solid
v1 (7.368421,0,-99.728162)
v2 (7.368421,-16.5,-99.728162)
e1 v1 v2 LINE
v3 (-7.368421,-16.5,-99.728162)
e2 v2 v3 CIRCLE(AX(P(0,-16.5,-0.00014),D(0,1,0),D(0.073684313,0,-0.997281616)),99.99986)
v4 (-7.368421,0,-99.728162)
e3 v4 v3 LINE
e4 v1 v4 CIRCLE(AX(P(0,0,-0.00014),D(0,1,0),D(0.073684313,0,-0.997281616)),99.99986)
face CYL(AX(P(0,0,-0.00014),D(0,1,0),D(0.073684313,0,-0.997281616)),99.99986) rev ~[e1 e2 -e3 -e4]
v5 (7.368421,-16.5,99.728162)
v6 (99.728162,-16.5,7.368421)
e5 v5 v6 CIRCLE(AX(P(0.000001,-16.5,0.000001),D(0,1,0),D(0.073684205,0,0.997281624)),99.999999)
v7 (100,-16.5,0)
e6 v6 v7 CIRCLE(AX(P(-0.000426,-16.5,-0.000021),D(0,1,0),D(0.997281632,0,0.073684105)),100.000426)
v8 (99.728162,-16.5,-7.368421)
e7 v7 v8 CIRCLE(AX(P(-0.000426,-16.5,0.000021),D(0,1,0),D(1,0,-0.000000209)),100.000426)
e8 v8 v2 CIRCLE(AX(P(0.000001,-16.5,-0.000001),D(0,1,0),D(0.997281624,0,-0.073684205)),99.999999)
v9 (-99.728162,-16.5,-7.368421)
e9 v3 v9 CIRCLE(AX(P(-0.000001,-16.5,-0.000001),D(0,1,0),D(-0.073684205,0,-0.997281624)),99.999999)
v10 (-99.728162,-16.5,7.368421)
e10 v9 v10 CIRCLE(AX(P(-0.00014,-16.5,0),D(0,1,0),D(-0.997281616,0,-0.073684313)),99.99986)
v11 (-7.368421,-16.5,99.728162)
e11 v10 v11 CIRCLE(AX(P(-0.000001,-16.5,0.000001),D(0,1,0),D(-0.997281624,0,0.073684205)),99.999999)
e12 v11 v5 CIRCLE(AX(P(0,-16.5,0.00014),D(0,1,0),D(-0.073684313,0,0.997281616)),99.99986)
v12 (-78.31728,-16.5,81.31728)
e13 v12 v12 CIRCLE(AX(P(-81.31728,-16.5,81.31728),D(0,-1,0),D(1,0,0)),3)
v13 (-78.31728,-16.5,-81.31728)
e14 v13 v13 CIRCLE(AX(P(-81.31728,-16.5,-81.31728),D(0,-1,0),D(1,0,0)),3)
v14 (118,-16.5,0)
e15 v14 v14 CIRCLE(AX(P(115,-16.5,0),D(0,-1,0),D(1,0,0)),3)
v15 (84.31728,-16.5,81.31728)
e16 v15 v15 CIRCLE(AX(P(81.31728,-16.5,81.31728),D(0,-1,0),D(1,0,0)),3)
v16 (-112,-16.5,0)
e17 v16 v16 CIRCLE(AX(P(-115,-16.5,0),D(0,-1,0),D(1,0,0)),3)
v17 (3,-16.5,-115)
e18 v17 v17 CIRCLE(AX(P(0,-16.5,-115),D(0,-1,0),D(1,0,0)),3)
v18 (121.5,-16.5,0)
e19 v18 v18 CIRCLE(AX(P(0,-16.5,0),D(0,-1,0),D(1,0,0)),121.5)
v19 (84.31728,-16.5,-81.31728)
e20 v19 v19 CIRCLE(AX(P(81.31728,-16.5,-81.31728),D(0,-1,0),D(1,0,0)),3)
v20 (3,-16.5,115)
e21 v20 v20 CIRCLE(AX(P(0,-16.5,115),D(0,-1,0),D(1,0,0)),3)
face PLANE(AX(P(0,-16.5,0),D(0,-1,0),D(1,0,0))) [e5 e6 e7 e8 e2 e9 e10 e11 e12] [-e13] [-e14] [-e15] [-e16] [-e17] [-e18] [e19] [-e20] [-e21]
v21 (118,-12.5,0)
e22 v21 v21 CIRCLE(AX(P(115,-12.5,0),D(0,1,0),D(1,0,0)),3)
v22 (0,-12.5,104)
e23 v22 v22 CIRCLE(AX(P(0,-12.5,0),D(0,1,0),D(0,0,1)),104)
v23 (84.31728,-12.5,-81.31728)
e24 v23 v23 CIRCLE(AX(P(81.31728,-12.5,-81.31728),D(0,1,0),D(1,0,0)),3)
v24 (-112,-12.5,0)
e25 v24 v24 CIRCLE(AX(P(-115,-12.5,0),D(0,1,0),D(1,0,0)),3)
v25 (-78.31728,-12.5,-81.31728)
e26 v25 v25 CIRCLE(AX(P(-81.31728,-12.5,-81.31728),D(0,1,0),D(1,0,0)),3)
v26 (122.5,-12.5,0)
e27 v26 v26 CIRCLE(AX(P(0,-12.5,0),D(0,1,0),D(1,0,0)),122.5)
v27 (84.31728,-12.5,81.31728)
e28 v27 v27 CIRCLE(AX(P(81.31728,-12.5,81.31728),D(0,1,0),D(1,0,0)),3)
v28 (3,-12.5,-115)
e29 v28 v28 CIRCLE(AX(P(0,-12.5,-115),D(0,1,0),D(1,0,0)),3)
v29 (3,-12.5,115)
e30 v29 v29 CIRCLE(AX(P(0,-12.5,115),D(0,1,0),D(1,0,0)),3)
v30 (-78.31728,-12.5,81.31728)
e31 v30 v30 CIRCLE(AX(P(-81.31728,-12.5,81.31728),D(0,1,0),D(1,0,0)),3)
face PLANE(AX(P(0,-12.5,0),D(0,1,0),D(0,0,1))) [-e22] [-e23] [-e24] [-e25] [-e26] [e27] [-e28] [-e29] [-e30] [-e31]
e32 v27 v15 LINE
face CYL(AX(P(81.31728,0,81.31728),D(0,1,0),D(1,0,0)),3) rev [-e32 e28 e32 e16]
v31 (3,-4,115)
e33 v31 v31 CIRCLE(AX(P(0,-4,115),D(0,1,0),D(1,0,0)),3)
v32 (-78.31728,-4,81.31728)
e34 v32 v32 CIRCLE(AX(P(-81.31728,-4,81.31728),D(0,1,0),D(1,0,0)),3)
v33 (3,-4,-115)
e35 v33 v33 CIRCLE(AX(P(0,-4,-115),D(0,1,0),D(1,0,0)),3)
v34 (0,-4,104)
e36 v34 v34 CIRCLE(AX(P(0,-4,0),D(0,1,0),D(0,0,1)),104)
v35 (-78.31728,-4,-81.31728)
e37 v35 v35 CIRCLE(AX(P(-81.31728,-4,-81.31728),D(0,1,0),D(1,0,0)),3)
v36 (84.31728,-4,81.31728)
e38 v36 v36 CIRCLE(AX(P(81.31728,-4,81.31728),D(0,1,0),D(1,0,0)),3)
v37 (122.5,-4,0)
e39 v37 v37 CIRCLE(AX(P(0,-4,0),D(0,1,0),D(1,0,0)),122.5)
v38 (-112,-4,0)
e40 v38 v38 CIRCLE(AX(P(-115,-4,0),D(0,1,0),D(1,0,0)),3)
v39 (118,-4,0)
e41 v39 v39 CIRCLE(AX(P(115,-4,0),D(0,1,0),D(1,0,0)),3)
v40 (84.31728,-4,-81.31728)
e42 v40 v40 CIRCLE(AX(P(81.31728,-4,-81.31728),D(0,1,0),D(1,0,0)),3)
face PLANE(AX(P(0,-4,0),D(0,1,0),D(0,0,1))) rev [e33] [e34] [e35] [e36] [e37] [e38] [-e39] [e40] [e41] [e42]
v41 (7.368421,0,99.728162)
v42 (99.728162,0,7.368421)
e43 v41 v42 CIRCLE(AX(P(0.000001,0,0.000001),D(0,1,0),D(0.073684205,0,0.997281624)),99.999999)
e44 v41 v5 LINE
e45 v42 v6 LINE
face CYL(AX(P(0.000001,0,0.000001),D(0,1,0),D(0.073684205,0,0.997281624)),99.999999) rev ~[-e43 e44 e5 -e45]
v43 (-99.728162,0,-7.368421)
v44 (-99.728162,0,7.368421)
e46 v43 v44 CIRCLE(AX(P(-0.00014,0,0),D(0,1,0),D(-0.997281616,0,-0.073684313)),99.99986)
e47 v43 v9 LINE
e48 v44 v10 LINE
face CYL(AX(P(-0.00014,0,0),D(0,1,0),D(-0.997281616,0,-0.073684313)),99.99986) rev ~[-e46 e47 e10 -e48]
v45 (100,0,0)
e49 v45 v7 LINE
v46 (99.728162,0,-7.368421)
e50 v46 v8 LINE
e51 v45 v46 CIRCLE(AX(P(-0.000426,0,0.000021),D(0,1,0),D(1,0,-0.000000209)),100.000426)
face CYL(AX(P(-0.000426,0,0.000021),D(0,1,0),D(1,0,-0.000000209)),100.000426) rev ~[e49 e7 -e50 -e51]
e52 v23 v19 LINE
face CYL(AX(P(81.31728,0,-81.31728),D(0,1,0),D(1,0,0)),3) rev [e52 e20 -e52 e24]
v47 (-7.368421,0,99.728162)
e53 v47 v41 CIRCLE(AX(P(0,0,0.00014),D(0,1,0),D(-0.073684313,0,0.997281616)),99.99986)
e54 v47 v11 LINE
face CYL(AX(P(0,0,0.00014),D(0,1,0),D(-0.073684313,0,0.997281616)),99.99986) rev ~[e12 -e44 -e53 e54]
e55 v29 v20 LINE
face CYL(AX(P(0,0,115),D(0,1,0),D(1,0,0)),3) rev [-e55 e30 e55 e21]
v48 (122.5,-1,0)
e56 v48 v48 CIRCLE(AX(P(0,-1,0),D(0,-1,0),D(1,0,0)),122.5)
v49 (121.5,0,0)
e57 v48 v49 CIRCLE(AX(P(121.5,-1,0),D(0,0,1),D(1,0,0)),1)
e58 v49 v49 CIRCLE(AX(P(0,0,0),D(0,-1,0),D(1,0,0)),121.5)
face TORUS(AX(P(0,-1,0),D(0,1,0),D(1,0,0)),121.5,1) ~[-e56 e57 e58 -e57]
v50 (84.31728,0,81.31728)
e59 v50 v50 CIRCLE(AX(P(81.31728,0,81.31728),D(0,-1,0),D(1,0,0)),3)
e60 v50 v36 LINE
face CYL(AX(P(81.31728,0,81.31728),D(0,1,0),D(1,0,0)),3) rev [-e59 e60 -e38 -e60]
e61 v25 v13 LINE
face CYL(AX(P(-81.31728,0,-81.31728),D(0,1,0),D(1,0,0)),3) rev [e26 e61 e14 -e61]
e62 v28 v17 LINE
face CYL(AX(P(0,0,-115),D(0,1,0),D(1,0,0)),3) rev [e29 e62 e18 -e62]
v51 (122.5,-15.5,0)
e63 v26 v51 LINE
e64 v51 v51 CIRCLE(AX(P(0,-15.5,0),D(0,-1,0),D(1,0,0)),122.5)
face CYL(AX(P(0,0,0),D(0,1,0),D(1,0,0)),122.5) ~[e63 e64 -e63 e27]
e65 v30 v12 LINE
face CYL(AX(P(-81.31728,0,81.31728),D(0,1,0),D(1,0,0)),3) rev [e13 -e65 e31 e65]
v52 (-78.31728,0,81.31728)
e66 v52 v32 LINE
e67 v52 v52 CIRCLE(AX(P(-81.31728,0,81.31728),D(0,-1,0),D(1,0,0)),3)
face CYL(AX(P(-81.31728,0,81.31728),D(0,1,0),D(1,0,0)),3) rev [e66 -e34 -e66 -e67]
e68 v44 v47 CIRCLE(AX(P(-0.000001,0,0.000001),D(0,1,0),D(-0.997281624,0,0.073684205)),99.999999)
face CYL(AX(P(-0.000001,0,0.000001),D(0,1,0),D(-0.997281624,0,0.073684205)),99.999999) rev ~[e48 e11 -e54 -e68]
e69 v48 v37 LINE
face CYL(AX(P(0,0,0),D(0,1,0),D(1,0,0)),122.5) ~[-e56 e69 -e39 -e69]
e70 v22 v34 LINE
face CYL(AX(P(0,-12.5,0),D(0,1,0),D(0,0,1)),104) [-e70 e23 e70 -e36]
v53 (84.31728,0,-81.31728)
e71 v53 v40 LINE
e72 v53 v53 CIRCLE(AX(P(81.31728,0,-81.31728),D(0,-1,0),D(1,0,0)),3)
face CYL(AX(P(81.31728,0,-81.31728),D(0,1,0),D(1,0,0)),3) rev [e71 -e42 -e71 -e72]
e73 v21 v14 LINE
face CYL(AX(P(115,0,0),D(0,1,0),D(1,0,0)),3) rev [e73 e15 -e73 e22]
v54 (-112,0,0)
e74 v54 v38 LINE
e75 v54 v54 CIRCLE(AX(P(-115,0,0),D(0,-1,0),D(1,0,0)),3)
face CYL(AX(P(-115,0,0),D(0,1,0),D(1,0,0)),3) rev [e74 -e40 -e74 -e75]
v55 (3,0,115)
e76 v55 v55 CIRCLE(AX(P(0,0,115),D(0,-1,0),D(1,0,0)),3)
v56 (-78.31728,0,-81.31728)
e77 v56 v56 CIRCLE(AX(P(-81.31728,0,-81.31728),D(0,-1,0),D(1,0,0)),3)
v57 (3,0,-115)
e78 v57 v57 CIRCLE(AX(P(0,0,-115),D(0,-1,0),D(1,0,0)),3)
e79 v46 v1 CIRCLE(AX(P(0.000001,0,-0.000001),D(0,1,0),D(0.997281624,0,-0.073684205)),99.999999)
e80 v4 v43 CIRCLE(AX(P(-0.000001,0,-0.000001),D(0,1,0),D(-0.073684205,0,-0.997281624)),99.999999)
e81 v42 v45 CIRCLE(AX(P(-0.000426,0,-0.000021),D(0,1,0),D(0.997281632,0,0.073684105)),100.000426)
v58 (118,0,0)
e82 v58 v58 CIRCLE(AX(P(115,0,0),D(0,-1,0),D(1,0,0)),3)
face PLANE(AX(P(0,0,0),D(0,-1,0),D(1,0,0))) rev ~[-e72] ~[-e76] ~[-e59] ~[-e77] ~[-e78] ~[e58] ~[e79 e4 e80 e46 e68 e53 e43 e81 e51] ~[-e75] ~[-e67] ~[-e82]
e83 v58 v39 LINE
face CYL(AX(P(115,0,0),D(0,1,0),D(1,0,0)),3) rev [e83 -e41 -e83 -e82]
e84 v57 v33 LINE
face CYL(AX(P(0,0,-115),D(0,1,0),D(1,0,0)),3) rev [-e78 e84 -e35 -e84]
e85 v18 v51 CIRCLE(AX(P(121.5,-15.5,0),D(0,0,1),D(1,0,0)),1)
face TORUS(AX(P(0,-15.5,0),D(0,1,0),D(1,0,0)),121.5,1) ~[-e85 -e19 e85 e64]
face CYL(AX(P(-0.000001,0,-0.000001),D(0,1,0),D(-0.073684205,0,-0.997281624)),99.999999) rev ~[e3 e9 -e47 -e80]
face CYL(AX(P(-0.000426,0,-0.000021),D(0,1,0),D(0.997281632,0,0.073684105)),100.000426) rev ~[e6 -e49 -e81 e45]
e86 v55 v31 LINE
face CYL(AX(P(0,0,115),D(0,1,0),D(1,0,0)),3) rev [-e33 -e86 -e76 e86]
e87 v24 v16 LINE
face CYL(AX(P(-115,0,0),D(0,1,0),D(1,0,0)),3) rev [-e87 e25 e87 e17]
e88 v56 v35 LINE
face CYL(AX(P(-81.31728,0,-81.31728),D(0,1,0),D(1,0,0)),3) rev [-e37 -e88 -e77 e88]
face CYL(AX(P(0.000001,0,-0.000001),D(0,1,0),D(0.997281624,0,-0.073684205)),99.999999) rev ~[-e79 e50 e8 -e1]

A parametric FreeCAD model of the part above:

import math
import FreeCAD as App
import Part
import Sketcher

V = App.Vector
Q = App.Units.Quantity


def edges_at(feature, points):
    """Names of the edges that pass closest to the given points."""
    edges = feature.Shape.Edges
    near = lambda p: min(range(len(edges)), key=lambda i: edges[i].distToShape(Part.Vertex(*p))[0])
    return sorted({f"Edge{near(p) + 1}" for p in points})

doc = App.newDocument("Part")
params = doc.addObject("Spreadsheet::Sheet", "Params")
for row, (alias, value) in enumerate([
    ("sketch1_diameter", "245 mm"),
    ("sketch1_diameter2", "6 mm"),
    ("sketch1_diameter3", "6 mm"),
    ("sketch1_diameter4", "6 mm"),
    ("sketch1_diameter5", "6 mm"),
    ("pad1_length", "16.5 mm"),
    ("sketch2_width", "8.5 mm"),
    ("groove_angle", "360 deg"),
    ("fillet_radius", "1 mm"),
], start=1):
    params.set(f"A{row}", alias)
    params.set(f"B{row}", "=" + value)
    params.setAlias(f"B{row}", alias)

body = doc.addObject("PartDesign::Body", "Body")

# Sketch on XZ plane
sketch1 = body.newObject("Sketcher::SketchObject", "Sketch")
sketch1.AttachmentSupport = (doc.getObject("XZ_Plane"), [""])
sketch1.MapMode = "FlatFace"
sketch1.addGeometry([
    Part.Circle(V(0, 0, 0), V(0, 0, 1), 122.5),  # 0
    Part.Circle(V(-81.31728, -81.31728, 0), V(0, 0, 1), 3),  # 1
    Part.Circle(V(0, -115, 0), V(0, 0, 1), 3),  # 2
    Part.Circle(V(81.31728, -81.31728, 0), V(0, 0, 1), 3),  # 3
    Part.Circle(V(-115, 0, 0), V(0, 0, 1), 3),  # 4
    Part.Circle(V(-81.31728, 81.31728, 0), V(0, 0, 1), 3),  # 5
    Part.ArcOfCircle(Part.Circle(V(-0.00014, 0, 0), V(0, 0, 1), 99.99986), math.radians(175.77437), math.radians(184.22563)),  # 6
    Part.ArcOfCircle(Part.Circle(V(-0.000001, 0.000001, 0), V(0, 0, 1), 99.999999), math.radians(94.225624), math.radians(175.774376)),  # 7
    Part.ArcOfCircle(Part.Circle(V(0, 0.00014, 0), V(0, 0, 1), 99.99986), math.radians(85.77437), math.radians(94.22563)),  # 8
    Part.ArcOfCircle(Part.Circle(V(0.000001, 0.000001, 0), V(0, 0, 1), 99.999999), math.radians(4.225624), math.radians(85.774376)),  # 9
    Part.ArcOfCircle(Part.Circle(V(-0.000426, -0.000021, 0), V(0, 0, 1), 100.000426), math.radians(0.000012), math.radians(4.225618)),  # 10
    Part.ArcOfCircle(Part.Circle(V(-0.000426, 0.000021, 0), V(0, 0, 1), 100.000426), math.radians(-4.225618), math.radians(-0.000012)),  # 11
    Part.ArcOfCircle(Part.Circle(V(0.000001, -0.000001, 0), V(0, 0, 1), 99.999999), math.radians(-85.774376), math.radians(-4.225624)),  # 12
    Part.ArcOfCircle(Part.Circle(V(0, -0.00014, 0), V(0, 0, 1), 99.99986), math.radians(-94.22563), math.radians(-85.77437)),  # 13
    Part.ArcOfCircle(Part.Circle(V(-0.000001, -0.000001, 0), V(0, 0, 1), 99.999999), math.radians(-175.774376), math.radians(-94.225624)),  # 14
    Part.Circle(V(115, 0, 0), V(0, 0, 1), 3),  # 15
    Part.Circle(V(0, 115, 0), V(0, 0, 1), 3),  # 16
    Part.Circle(V(81.31728, 81.31728, 0), V(0, 0, 1), 3),  # 17
], False)
sketch1.addConstraint([
    Sketcher.Constraint("Coincident", 6, 1, 7, 2),
    Sketcher.Constraint("Coincident", 7, 1, 8, 2),
    Sketcher.Constraint("Coincident", 8, 1, 9, 2),
    Sketcher.Constraint("Coincident", 9, 1, 10, 2),
    Sketcher.Constraint("Coincident", 10, 1, 11, 2),
    Sketcher.Constraint("Coincident", 11, 1, 12, 2),
    Sketcher.Constraint("Coincident", 12, 1, 13, 2),
    Sketcher.Constraint("Coincident", 13, 1, 14, 2),
    Sketcher.Constraint("Coincident", 14, 1, 6, 2),
    Sketcher.Constraint("Coincident", 0, 3, -1, 1),
    Sketcher.Constraint("Coincident", 7, 3, -1, 1),
    Sketcher.Constraint("Coincident", 9, 3, -1, 1),
    Sketcher.Constraint("Coincident", 12, 3, -1, 1),
    Sketcher.Constraint("Coincident", 14, 3, -1, 1),
    Sketcher.Constraint("PointOnObject", 2, 3, -2),
    Sketcher.Constraint("PointOnObject", 4, 3, -1),
    Sketcher.Constraint("PointOnObject", 6, 3, -1),
    Sketcher.Constraint("PointOnObject", 8, 3, -2),
    Sketcher.Constraint("PointOnObject", 13, 3, -2),
    Sketcher.Constraint("PointOnObject", 15, 3, -1),
    Sketcher.Constraint("PointOnObject", 16, 3, -2),
    Sketcher.Constraint("PointOnObject", 10, 1, -1),
    Sketcher.Constraint("Diameter", 0, Q("245 mm")),
    Sketcher.Constraint("Diameter", 1, Q("6 mm")),
    Sketcher.Constraint("Diameter", 2, Q("6 mm")),
    Sketcher.Constraint("Diameter", 3, Q("6 mm")),
    Sketcher.Constraint("Diameter", 4, Q("6 mm")),
    Sketcher.Constraint("Diameter", 5, Q("6 mm")),
    Sketcher.Constraint("Diameter", 15, Q("6 mm")),
    Sketcher.Constraint("Diameter", 16, Q("6 mm")),
    Sketcher.Constraint("Diameter", 17, Q("6 mm")),
    Sketcher.Constraint("Radius", 7, Q("99.999999 mm")),
    Sketcher.Constraint("DistanceY", 2, 3, -1, 1, Q("115 mm")),
    Sketcher.Constraint("DistanceX", 4, 3, -1, 1, Q("115 mm")),
    Sketcher.Constraint("DistanceX", -1, 1, 15, 3, Q("115 mm")),
    Sketcher.Constraint("DistanceY", -1, 1, 16, 3, Q("115 mm")),
    Sketcher.Constraint("DistanceX", -1, 1, 10, 1, Q("100 mm")),
    Sketcher.Constraint("Radius", 6, Q("99.99986 mm")),
    Sketcher.Constraint("Radius", 8, Q("99.99986 mm")),
    Sketcher.Constraint("Radius", 13, Q("99.99986 mm")),
    Sketcher.Constraint("Radius", 10, Q("100.000426 mm")),
    Sketcher.Constraint("Radius", 11, Q("100.000426 mm")),
    Sketcher.Constraint("DistanceY", 1, 3, 6, 1, Q("88.685701 mm")),
    Sketcher.Constraint("DistanceY", 11, 3, 6, 1, Q("7.3684 mm")),
    Sketcher.Constraint("DistanceX", 7, 1, 17, 3, Q("88.685701 mm")),
    Sketcher.Constraint("DistanceX", 5, 3, 8, 1, Q("88.685701 mm")),
    Sketcher.Constraint("DistanceY", 3, 3, 9, 1, Q("88.685701 mm")),
    Sketcher.Constraint("DistanceY", 11, 1, 17, 3, Q("88.685701 mm")),
    Sketcher.Constraint("DistanceX", 1, 3, 12, 1, Q("88.685701 mm")),
    Sketcher.Constraint("DistanceX", 13, 1, 3, 3, Q("88.685701 mm")),
    Sketcher.Constraint("DistanceY", 14, 1, 5, 3, Q("88.685701 mm")),
    Sketcher.Constraint("DistanceY", 14, 1, 10, 3, Q("7.3684 mm")),
    Sketcher.Constraint("DistanceX", 1, 3, -1, 1, Q("81.31728 mm")),
    Sketcher.Constraint("DistanceX", -1, 1, 3, 3, Q("81.31728 mm")),
    Sketcher.Constraint("DistanceY", 3, 3, -1, 1, Q("81.31728 mm")),
    Sketcher.Constraint("DistanceX", 5, 3, -1, 1, Q("81.31728 mm")),
    Sketcher.Constraint("DistanceX", -1, 1, 17, 3, Q("81.31728 mm")),
    Sketcher.Constraint("DistanceY", -1, 1, 17, 3, Q("81.31728 mm")),
])
sketch1.setExpression("Constraints[22]", "Params.sketch1_diameter")
sketch1.setExpression("Constraints[23]", "Params.sketch1_diameter2")
sketch1.setExpression("Constraints[24]", "Params.sketch1_diameter3")
sketch1.setExpression("Constraints[25]", "Params.sketch1_diameter4")
sketch1.setExpression("Constraints[26]", "Params.sketch1_diameter5")
pad1 = body.newObject("PartDesign::Pad", "Pad")
pad1.Profile = sketch1
pad1.setExpression("Length", "Params.pad1_length")

# Sketch on YZ plane
sketch2 = body.newObject("Sketcher::SketchObject", "Sketch001")
sketch2.AttachmentSupport = (doc.getObject("YZ_Plane"), [""])
sketch2.MapMode = "FlatFace"
sketch2.addGeometry([
    Part.LineSegment(V(-12, 104, 0), V(-4, 104, 0)),
    Part.LineSegment(V(-4, 104, 0), V(-4, 127, 0)),
    Part.LineSegment(V(-4, 127, 0), V(-12, 127, 0)),
    Part.LineSegment(V(-12, 127, 0), V(-12, 104, 0)),
], False)
sketch2.addConstraint([
    Sketcher.Constraint("Coincident", 0, 2, 1, 1),
    Sketcher.Constraint("Coincident", 1, 2, 2, 1),
    Sketcher.Constraint("Coincident", 2, 2, 3, 1),
    Sketcher.Constraint("Coincident", 3, 2, 0, 1),
    Sketcher.Constraint("Horizontal", 0),
    Sketcher.Constraint("Vertical", 1),
    Sketcher.Constraint("Vertical", 3),
    Sketcher.Constraint("DistanceX", 0, 1, 0, 2, Q("8.5 mm")),
    Sketcher.Constraint("DistanceX", 0, 2, -1, 1, Q("4 mm")),
    Sketcher.Constraint("DistanceY", -1, 1, 0, 2, Q("104 mm")),
    Sketcher.Constraint("DistanceY", 1, 1, 1, 2, Q("22.782835 mm")),
    Sketcher.Constraint("DistanceY", 3, 2, 3, 1, Q("23.067506 mm")),
])
sketch2.setExpression("Constraints[7]", "Params.sketch2_width")
groove = body.newObject("PartDesign::Groove", "Groove")
groove.Profile = sketch2
groove.ReferenceAxis = (sketch2, ["H_Axis"])
groove.setExpression("Angle", "Params.groove_angle")
doc.recompute()

fillet = body.newObject("PartDesign::Fillet", "Fillet")
fillet.Base = (groove, edges_at(groove, [(-122.5, -16.5, 0), (-122.5, 0, 0)]))
fillet.setExpression("Radius", "Params.fillet_radius")

doc.recompute()
